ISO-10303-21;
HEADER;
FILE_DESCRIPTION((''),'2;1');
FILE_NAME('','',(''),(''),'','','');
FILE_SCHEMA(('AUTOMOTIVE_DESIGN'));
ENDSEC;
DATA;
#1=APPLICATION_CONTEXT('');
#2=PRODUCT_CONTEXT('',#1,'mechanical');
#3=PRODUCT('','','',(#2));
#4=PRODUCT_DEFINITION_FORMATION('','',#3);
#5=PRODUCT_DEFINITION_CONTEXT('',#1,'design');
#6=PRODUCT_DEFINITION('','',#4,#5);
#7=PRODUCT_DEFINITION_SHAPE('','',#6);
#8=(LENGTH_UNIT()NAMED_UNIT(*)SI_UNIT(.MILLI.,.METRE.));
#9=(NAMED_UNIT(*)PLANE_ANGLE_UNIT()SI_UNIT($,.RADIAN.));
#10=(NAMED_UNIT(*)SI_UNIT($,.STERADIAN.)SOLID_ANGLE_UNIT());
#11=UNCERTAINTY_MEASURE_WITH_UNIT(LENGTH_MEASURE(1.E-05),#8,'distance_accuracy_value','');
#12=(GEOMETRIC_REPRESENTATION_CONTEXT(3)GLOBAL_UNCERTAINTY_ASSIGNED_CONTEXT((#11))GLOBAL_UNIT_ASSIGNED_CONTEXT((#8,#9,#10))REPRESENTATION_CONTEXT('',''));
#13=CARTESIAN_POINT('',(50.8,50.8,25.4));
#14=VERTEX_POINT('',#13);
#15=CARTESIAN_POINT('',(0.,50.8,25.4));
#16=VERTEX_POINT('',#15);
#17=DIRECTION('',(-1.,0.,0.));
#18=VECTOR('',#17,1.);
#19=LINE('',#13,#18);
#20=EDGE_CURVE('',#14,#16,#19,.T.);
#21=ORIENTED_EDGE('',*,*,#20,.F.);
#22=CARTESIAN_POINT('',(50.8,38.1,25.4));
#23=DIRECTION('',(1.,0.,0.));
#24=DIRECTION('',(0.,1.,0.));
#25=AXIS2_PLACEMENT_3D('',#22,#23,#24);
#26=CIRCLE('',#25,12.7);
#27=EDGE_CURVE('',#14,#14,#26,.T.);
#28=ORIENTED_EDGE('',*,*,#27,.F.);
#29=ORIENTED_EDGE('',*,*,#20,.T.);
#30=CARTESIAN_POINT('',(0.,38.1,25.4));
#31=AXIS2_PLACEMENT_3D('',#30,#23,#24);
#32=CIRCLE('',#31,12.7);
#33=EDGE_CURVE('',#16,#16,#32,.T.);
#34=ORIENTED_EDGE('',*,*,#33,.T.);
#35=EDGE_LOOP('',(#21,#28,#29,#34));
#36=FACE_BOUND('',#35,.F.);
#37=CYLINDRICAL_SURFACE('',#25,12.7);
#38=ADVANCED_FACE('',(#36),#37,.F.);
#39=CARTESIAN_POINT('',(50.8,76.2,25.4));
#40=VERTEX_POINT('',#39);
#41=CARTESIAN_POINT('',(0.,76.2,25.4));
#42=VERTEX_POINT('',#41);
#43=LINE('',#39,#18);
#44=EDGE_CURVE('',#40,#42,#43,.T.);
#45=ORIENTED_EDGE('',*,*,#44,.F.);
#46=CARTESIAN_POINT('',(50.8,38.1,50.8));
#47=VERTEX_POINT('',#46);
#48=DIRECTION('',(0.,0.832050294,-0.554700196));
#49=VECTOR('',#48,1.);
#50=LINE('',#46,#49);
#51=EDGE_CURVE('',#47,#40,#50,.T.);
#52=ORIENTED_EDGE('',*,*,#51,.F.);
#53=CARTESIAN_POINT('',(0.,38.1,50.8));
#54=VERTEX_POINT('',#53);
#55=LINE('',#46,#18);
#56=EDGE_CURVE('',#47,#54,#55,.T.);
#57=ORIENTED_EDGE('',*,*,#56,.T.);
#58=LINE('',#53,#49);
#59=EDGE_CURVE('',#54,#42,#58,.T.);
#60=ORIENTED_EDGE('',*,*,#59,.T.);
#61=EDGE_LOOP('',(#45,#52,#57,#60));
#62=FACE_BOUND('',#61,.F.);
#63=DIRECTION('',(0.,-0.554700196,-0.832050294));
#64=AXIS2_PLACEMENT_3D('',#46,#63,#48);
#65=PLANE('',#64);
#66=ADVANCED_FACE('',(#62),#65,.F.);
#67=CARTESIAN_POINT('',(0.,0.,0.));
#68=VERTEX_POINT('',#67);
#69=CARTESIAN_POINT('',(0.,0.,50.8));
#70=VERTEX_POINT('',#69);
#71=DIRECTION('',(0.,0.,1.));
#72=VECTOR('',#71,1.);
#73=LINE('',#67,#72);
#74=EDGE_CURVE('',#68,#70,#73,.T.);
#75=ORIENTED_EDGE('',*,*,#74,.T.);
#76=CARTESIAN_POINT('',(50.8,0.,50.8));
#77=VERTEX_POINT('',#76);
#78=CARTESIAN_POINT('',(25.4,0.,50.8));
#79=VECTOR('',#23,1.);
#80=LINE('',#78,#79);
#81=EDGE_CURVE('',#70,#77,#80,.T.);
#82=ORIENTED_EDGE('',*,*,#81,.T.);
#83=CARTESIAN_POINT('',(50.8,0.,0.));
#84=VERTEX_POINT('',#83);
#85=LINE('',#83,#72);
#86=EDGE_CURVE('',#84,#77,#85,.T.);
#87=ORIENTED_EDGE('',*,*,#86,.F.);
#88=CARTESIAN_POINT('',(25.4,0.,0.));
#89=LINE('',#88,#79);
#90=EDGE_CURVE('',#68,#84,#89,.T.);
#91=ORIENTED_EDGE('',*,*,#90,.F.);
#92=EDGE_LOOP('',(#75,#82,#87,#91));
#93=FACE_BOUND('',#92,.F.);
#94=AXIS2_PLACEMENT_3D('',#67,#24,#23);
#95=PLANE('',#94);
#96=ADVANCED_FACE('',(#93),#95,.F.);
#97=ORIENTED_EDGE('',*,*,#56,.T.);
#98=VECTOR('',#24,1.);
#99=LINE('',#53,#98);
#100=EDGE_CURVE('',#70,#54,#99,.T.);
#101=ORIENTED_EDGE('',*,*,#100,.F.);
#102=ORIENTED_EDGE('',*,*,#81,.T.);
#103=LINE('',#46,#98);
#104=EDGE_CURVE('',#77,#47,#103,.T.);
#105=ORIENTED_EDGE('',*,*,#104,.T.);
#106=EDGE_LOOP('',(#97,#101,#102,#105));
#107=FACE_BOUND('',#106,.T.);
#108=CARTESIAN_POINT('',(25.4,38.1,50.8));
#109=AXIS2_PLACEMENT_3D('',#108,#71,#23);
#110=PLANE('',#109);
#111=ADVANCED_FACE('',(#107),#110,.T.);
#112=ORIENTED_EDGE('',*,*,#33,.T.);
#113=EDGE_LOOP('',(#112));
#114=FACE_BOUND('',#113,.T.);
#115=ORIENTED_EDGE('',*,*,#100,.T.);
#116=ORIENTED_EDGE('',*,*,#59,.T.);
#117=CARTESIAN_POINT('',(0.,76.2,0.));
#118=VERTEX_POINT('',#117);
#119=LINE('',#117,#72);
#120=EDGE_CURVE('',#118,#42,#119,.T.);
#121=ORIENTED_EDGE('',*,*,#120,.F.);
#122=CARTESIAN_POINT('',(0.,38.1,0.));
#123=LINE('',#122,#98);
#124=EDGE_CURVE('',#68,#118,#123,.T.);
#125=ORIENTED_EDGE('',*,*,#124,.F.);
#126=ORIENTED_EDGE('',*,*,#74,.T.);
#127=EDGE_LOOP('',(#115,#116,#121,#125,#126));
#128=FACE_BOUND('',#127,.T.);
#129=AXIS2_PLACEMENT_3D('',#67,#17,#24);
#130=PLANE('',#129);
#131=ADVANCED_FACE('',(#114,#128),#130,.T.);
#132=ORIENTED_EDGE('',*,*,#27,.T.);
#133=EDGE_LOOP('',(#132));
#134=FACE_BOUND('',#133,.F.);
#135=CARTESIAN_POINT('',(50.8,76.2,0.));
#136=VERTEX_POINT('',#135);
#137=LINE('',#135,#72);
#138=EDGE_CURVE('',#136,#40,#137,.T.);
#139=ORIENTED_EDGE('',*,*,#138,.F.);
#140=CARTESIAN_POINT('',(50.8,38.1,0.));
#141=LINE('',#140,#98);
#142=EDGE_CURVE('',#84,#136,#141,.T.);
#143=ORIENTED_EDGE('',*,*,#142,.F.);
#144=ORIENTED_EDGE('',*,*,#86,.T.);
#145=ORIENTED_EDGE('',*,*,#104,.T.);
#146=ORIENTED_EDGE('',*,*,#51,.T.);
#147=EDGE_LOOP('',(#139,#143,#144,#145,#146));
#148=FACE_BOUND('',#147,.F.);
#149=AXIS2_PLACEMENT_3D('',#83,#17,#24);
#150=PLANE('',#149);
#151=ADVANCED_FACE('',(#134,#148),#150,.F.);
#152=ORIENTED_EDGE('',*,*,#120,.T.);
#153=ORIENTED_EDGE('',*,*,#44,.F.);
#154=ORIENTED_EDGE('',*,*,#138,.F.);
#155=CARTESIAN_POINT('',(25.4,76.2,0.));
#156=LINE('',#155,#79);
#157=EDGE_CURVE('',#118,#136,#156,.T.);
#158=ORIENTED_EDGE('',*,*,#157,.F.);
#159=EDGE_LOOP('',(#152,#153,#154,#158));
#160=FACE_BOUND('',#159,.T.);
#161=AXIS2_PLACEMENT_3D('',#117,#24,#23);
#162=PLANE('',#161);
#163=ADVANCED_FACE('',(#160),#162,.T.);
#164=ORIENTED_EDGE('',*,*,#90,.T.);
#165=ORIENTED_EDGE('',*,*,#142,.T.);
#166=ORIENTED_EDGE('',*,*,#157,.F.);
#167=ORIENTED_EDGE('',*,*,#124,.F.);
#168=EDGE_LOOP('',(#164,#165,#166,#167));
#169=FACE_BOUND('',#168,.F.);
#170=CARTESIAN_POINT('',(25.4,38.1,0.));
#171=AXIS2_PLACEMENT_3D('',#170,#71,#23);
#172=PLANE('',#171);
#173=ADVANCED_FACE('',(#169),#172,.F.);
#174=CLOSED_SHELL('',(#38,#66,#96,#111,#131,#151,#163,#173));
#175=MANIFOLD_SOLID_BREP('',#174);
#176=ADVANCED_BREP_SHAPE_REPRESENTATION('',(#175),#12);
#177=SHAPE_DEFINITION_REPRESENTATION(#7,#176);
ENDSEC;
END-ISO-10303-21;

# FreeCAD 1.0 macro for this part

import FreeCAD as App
import Part
import Sketcher
from FreeCAD import Vector
Q = App.Units.Quantity

doc = App.newDocument("Part")
body = doc.addObject("PartDesign::Body", "Body")

sketch1 = body.newObject("Sketcher::SketchObject", "Sketch")
sketch1.AttachmentSupport = (doc.getObject("XY_Plane"), [""])
sketch1.MapMode = "FlatFace"
sketch1.addGeometry(Part.LineSegment(Vector(0, 76, 0), Vector(0, 0, 0)), False)
sketch1.addGeometry(Part.LineSegment(Vector(0, 0, 0), Vector(51, 0, 0)), False)
sketch1.addGeometry(Part.LineSegment(Vector(51, 0, 0), Vector(51, 76, 0)), False)
sketch1.addGeometry(Part.LineSegment(Vector(51, 76, 0), Vector(0, 76, 0)), False)
sketch1.addConstraint(Sketcher.Constraint("Coincident", 0, 2, 1, 1))
sketch1.addConstraint(Sketcher.Constraint("Coincident", 1, 2, 2, 1))
sketch1.addConstraint(Sketcher.Constraint("Coincident", 2, 2, 3, 1))
sketch1.addConstraint(Sketcher.Constraint("Coincident", 3, 2, 0, 1))
sketch1.addConstraint(Sketcher.Constraint("Vertical", 0))
sketch1.addConstraint(Sketcher.Constraint("Horizontal", 1))
sketch1.addConstraint(Sketcher.Constraint("Vertical", 2))
sketch1.addConstraint(Sketcher.Constraint("Horizontal", 3))
sketch1.addConstraint(Sketcher.Constraint("Coincident", 0, 2, -1, 1))
sketch1.addConstraint(Sketcher.Constraint("DistanceX", 1, 1, 1, 2, Q("2 in")))
sketch1.addConstraint(Sketcher.Constraint("DistanceY", 0, 2, 0, 1, Q("3 in")))
pad1 = body.newObject("PartDesign::Pad", "Pad")
pad1.Profile = sketch1
pad1.Length = Q("2 in")

sketch2 = body.newObject("Sketcher::SketchObject", "Sketch001")
sketch2.AttachmentSupport = (doc.getObject("YZ_Plane"), [""])
sketch2.MapMode = "FlatFace"
sketch2.AttachmentOffset = App.Placement(Vector(0, 0, 2 * 25.4), App.Rotation())
sketch2.addGeometry(Part.Circle(Vector(38, 25, 0), Vector(0, 0, 1), 13), False)
sketch2.addConstraint(Sketcher.Constraint("Diameter", 0, Q("1 in")))
sketch2.addConstraint(Sketcher.Constraint("DistanceY", -1, 1, 0, 3, Q("1 in")))
sketch2.addConstraint(Sketcher.Constraint("DistanceX", -1, 1, 0, 3, Q("1.5 in")))
pocket1 = body.newObject("PartDesign::Pocket", "Pocket")
pocket1.Profile = sketch2
pocket1.Type = "ThroughAll"

sketch3 = body.newObject("Sketcher::SketchObject", "Sketch002")
sketch3.AttachmentSupport = (doc.getObject("YZ_Plane"), [""])
sketch3.MapMode = "FlatFace"
sketch3.AttachmentOffset = App.Placement(Vector(0, 0, 2 * 25.4), App.Rotation())
sketch3.addGeometry(Part.LineSegment(Vector(76, 51, 0), Vector(38, 51, 0)), False)
sketch3.addGeometry(Part.LineSegment(Vector(38, 51, 0), Vector(76, 25, 0)), False)
sketch3.addGeometry(Part.LineSegment(Vector(76, 25, 0), Vector(76, 51, 0)), False)
sketch3.addConstraint(Sketcher.Constraint("Coincident", 0, 2, 1, 1))
sketch3.addConstraint(Sketcher.Constraint("Coincident", 1, 2, 2, 1))
sketch3.addConstraint(Sketcher.Constraint("Coincident", 2, 2, 0, 1))
sketch3.addConstraint(Sketcher.Constraint("Horizontal", 0))
sketch3.addConstraint(Sketcher.Constraint("Vertical", 2))
sketch3.addConstraint(Sketcher.Constraint("DistanceY", 2, 1, 2, 2, Q("1 in")))
sketch3.addConstraint(Sketcher.Constraint("DistanceX", 0, 2, 0, 1, Q("1.5 in")))
sketch3.addConstraint(Sketcher.Constraint("DistanceY", -1, 1, 0, 2, Q("2 in")))
sketch3.addConstraint(Sketcher.Constraint("DistanceX", -1, 1, 1, 2, Q("3 in")))
pocket2 = body.newObject("PartDesign::Pocket", "Pocket001")
pocket2.Profile = sketch3
pocket2.Type = "ThroughAll"

doc.recompute()
